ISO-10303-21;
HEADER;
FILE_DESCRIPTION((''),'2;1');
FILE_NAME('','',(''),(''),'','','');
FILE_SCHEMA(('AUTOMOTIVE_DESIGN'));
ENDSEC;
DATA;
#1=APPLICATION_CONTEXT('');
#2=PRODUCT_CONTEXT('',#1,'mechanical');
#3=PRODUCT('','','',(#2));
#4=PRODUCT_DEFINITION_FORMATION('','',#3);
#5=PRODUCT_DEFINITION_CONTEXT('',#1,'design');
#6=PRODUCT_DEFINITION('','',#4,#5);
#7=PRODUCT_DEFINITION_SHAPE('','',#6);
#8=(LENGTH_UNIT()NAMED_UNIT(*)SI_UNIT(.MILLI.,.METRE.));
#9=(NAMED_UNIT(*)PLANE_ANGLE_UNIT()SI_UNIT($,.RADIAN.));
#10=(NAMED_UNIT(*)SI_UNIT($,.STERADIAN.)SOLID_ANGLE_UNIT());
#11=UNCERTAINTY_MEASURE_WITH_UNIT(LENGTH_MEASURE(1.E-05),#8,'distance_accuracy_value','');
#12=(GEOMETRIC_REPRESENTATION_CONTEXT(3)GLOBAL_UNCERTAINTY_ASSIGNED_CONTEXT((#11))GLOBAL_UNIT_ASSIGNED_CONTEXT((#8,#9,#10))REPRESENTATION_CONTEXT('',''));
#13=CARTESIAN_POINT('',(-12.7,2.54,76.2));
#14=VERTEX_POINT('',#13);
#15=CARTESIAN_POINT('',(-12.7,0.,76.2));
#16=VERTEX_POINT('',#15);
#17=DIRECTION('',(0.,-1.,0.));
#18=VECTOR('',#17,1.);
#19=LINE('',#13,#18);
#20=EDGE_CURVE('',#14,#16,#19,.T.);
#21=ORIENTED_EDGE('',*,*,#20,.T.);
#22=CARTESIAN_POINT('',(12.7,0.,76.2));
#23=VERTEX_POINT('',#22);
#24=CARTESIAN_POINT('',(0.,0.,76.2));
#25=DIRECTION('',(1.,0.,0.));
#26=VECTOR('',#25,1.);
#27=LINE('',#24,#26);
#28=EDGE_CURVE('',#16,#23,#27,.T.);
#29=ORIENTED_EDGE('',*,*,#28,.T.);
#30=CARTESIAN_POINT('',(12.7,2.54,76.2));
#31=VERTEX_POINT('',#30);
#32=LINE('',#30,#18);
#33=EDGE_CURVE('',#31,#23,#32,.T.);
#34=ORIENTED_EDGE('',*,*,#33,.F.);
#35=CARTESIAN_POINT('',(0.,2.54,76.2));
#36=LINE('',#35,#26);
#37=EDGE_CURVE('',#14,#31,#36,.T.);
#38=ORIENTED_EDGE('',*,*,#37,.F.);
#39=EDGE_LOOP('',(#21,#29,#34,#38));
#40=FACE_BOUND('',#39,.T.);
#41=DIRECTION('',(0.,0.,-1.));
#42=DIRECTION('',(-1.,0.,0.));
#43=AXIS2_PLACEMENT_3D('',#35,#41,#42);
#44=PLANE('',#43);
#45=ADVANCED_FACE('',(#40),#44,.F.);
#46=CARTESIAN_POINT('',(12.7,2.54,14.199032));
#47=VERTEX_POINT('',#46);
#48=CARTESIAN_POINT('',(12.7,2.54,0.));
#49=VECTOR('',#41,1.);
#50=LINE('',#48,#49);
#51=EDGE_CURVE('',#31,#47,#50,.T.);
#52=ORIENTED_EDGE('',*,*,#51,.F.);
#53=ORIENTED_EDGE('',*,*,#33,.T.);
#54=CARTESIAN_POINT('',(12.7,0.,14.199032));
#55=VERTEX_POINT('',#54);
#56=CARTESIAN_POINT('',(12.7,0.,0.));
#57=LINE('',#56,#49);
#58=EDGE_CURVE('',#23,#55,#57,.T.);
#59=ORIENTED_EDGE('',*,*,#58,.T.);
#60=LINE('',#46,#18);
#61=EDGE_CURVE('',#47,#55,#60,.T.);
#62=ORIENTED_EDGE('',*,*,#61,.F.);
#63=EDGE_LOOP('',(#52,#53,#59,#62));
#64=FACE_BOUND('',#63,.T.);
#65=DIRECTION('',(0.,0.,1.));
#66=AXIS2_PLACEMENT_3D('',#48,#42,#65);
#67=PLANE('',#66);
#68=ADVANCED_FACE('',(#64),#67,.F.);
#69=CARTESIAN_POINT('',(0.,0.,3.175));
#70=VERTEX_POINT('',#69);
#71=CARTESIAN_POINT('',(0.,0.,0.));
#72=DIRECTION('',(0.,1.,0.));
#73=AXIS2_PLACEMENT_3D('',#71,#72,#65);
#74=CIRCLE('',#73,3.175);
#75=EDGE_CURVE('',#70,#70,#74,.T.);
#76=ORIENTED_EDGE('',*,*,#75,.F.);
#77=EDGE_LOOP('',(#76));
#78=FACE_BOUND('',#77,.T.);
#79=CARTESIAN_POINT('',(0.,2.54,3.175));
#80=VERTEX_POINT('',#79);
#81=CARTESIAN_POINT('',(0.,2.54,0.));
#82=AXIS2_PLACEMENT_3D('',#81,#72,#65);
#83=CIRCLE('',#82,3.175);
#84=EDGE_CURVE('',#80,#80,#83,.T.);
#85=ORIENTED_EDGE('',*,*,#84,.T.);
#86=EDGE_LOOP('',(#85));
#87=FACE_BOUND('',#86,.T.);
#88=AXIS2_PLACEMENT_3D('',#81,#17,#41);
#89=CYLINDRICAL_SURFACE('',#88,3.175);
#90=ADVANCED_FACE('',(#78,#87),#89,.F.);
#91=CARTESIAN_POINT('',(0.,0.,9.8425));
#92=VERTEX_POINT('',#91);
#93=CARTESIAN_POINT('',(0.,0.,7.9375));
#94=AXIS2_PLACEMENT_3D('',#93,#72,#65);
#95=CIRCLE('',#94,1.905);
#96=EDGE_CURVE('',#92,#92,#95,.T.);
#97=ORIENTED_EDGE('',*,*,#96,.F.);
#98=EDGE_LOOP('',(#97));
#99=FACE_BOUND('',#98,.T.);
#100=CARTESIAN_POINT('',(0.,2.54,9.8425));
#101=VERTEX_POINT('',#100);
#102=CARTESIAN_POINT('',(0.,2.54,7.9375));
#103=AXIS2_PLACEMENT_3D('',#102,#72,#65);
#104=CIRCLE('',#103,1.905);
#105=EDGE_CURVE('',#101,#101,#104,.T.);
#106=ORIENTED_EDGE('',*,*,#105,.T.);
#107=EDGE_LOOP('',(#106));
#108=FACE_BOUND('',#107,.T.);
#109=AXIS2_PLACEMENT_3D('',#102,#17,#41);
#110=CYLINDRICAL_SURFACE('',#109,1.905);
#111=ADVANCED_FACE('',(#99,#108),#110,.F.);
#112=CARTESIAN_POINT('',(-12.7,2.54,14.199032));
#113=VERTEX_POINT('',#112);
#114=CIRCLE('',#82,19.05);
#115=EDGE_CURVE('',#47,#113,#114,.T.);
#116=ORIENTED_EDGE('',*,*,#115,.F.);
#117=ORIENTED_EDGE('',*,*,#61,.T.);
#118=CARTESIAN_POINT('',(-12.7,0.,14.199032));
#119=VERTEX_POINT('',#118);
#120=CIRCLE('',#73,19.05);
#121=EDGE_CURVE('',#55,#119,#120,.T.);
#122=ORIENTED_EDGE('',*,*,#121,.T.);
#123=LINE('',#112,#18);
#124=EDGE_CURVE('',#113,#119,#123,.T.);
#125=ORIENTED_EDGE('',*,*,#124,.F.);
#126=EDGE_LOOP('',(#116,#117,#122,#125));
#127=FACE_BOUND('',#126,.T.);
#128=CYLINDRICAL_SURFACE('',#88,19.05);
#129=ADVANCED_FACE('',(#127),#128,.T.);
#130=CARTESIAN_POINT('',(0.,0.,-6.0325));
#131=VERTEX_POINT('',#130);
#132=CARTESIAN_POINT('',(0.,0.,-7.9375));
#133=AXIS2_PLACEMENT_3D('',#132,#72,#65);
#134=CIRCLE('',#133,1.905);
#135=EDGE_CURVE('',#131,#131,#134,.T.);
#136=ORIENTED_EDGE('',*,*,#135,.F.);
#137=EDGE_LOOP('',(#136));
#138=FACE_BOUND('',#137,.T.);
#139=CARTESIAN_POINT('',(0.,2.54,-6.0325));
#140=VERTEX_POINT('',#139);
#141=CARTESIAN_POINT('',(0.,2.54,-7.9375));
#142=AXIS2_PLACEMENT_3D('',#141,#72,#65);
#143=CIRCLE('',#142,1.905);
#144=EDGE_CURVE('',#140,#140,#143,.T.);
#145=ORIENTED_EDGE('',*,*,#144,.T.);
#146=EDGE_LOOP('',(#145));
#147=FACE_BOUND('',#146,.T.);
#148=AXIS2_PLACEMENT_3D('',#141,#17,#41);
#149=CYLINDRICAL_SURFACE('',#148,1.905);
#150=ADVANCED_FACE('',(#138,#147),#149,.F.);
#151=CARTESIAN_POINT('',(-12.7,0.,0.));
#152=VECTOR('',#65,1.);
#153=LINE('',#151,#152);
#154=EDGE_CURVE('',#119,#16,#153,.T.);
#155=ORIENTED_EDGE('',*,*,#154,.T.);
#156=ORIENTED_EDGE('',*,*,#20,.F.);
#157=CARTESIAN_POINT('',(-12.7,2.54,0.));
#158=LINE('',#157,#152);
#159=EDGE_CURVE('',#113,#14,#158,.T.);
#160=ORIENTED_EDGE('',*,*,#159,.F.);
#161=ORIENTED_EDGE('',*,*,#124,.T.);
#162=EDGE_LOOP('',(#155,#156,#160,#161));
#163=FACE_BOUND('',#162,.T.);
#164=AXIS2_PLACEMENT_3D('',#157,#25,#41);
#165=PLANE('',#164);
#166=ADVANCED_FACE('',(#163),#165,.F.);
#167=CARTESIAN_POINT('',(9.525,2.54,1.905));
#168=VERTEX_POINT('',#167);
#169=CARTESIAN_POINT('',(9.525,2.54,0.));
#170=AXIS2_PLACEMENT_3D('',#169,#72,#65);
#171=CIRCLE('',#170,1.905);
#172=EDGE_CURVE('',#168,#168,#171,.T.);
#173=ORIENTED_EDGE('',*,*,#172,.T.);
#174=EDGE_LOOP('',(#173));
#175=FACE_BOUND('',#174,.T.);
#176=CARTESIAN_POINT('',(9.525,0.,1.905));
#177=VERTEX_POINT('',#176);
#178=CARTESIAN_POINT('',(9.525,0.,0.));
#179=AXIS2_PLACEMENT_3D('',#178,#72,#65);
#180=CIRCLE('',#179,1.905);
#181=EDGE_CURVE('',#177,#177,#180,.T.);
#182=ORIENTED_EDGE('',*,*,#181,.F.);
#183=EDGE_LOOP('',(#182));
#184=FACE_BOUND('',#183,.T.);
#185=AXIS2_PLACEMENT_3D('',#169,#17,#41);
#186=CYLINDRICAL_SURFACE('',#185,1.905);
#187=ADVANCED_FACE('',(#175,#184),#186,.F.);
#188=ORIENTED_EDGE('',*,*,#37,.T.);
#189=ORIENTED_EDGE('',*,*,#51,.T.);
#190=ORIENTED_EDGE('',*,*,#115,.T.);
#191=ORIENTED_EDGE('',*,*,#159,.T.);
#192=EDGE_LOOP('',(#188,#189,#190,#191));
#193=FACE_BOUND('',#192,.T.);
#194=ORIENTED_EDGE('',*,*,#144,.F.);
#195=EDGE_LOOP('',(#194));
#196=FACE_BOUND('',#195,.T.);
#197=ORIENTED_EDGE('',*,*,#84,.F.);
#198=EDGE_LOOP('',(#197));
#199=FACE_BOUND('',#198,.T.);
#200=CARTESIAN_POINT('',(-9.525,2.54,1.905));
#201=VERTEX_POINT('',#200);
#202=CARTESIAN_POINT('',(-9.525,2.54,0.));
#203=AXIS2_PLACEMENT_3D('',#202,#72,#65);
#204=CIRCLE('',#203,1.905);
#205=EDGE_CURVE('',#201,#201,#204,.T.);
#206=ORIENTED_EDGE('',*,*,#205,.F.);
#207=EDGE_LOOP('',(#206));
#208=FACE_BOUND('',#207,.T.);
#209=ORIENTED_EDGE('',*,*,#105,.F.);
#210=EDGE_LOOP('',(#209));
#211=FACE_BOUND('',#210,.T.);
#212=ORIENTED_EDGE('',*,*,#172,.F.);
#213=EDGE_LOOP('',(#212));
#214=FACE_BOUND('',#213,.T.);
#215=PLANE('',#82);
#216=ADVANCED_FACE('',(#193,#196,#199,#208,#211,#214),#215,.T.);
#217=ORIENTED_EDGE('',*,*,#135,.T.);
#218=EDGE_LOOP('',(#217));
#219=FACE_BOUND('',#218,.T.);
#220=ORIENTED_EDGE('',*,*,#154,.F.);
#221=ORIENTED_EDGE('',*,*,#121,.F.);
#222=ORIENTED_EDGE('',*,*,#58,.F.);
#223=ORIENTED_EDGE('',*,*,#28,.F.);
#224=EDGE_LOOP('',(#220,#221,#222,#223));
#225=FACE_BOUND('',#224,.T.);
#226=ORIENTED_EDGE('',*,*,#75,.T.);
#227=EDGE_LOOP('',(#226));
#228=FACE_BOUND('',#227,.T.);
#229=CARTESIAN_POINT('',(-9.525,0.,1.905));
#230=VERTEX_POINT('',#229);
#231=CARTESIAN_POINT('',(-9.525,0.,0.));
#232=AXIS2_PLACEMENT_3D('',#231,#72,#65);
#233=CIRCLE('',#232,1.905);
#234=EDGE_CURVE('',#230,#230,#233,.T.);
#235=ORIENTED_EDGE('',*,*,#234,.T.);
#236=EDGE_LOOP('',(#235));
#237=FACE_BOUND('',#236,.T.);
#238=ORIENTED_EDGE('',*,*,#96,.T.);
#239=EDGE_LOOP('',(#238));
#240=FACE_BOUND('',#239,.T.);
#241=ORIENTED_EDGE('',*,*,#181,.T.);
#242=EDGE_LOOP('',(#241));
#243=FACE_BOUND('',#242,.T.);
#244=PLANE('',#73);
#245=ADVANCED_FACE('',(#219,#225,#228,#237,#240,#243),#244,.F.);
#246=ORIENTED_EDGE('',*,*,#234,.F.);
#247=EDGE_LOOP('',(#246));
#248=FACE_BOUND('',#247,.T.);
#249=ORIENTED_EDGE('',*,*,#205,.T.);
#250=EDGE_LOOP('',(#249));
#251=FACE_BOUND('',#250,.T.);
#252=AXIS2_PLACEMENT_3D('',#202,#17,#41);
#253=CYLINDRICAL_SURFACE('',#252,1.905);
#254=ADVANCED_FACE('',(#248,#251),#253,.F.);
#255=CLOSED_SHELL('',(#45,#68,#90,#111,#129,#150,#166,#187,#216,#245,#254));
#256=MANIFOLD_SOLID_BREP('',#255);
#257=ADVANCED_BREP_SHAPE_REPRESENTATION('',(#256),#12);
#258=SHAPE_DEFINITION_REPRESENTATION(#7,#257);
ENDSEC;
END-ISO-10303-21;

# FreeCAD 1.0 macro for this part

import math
import FreeCAD as App
import Part
import Sketcher
Q = App.Units.Quantity

doc = App.newDocument("Part")
body = doc.addObject("PartDesign::Body", "Body")

# Sketch on XZ plane
sketch1 = body.newObject("Sketcher::SketchObject", "Sketch")
sketch1.AttachmentSupport = (doc.getObject("XZ_Plane"), [""])
sketch1.MapMode = "FlatFace"
sketch1.addGeometry([
    Part.LineSegment(App.Vector(12.7, 76.2, 0), App.Vector(12.7, 14.2, 0)),  # 0
    Part.ArcOfCircle(Part.Circle(App.Vector(0, 0, 0), App.Vector(0, 0, 1), 19.1), math.radians(132), math.radians(408)),  # 1
    Part.LineSegment(App.Vector(-12.7, 14.2, 0), App.Vector(-12.7, 76.2, 0)),  # 2
    Part.LineSegment(App.Vector(-12.7, 76.2, 0), App.Vector(12.7, 76.2, 0)),  # 3
    Part.Circle(App.Vector(0, 7.9, 0), App.Vector(0, 0, 1), 1.9),  # 4
    Part.Circle(App.Vector(-9.5, 0, 0), App.Vector(0, 0, 1), 1.9),  # 5
    Part.Circle(App.Vector(0, 0, 0), App.Vector(0, 0, 1), 3.2),  # 6
    Part.Circle(App.Vector(9.5, 0, 0), App.Vector(0, 0, 1), 1.9),  # 7
    Part.Circle(App.Vector(0, -7.9, 0), App.Vector(0, 0, 1), 1.9),  # 8
], False)
sketch1.addConstraint([
    Sketcher.Constraint("Coincident", 0, 2, 1, 2),
    Sketcher.Constraint("Coincident", 1, 1, 2, 1),
    Sketcher.Constraint("Coincident", 2, 2, 3, 1),
    Sketcher.Constraint("Coincident", 3, 2, 0, 1),
    Sketcher.Constraint("Vertical", 0),
    Sketcher.Constraint("Vertical", 2),
    Sketcher.Constraint("Horizontal", 3),
    Sketcher.Constraint("Coincident", 1, 3, -1, 1),
    Sketcher.Constraint("Coincident", 6, 3, -1, 1),
    Sketcher.Constraint("Equal", 4, 5),
    Sketcher.Constraint("Equal", 5, 7),
    Sketcher.Constraint("Equal", 7, 8),
    Sketcher.Constraint("Symmetric", 5, 3, 7, 3, -1, 1),
    Sketcher.Constraint("Symmetric", 4, 3, 8, 3, -1, 1),
    Sketcher.Constraint("PointOnObject", 4, 3, -2),
    Sketcher.Constraint("PointOnObject", 5, 3, -1),
    Sketcher.Constraint("Horizontal", 0, 2, 1, 1),
    Sketcher.Constraint("Diameter", 4, Q("0.15 in")),
    Sketcher.Constraint("Diameter", 6, Q("0.25 in")),
    Sketcher.Constraint("DistanceX", 3, 1, 3, 2, Q("1 in")),
    Sketcher.Constraint("Radius", 1, Q("0.75 in")),
    Sketcher.Constraint("DistanceY", -1, 1, 2, 2, Q("3 in")),
    Sketcher.Constraint("DistanceX", 5, 3, 7, 3, Q("0.75 in")),
    Sketcher.Constraint("DistanceY", -1, 1, 4, 3, Q("0.3125 in")),
])
pad1 = body.newObject("PartDesign::Pad", "Pad")
pad1.Profile = sketch1
pad1.Length = Q("0.1 in")
pad1.Reversed = True

doc.recompute()
